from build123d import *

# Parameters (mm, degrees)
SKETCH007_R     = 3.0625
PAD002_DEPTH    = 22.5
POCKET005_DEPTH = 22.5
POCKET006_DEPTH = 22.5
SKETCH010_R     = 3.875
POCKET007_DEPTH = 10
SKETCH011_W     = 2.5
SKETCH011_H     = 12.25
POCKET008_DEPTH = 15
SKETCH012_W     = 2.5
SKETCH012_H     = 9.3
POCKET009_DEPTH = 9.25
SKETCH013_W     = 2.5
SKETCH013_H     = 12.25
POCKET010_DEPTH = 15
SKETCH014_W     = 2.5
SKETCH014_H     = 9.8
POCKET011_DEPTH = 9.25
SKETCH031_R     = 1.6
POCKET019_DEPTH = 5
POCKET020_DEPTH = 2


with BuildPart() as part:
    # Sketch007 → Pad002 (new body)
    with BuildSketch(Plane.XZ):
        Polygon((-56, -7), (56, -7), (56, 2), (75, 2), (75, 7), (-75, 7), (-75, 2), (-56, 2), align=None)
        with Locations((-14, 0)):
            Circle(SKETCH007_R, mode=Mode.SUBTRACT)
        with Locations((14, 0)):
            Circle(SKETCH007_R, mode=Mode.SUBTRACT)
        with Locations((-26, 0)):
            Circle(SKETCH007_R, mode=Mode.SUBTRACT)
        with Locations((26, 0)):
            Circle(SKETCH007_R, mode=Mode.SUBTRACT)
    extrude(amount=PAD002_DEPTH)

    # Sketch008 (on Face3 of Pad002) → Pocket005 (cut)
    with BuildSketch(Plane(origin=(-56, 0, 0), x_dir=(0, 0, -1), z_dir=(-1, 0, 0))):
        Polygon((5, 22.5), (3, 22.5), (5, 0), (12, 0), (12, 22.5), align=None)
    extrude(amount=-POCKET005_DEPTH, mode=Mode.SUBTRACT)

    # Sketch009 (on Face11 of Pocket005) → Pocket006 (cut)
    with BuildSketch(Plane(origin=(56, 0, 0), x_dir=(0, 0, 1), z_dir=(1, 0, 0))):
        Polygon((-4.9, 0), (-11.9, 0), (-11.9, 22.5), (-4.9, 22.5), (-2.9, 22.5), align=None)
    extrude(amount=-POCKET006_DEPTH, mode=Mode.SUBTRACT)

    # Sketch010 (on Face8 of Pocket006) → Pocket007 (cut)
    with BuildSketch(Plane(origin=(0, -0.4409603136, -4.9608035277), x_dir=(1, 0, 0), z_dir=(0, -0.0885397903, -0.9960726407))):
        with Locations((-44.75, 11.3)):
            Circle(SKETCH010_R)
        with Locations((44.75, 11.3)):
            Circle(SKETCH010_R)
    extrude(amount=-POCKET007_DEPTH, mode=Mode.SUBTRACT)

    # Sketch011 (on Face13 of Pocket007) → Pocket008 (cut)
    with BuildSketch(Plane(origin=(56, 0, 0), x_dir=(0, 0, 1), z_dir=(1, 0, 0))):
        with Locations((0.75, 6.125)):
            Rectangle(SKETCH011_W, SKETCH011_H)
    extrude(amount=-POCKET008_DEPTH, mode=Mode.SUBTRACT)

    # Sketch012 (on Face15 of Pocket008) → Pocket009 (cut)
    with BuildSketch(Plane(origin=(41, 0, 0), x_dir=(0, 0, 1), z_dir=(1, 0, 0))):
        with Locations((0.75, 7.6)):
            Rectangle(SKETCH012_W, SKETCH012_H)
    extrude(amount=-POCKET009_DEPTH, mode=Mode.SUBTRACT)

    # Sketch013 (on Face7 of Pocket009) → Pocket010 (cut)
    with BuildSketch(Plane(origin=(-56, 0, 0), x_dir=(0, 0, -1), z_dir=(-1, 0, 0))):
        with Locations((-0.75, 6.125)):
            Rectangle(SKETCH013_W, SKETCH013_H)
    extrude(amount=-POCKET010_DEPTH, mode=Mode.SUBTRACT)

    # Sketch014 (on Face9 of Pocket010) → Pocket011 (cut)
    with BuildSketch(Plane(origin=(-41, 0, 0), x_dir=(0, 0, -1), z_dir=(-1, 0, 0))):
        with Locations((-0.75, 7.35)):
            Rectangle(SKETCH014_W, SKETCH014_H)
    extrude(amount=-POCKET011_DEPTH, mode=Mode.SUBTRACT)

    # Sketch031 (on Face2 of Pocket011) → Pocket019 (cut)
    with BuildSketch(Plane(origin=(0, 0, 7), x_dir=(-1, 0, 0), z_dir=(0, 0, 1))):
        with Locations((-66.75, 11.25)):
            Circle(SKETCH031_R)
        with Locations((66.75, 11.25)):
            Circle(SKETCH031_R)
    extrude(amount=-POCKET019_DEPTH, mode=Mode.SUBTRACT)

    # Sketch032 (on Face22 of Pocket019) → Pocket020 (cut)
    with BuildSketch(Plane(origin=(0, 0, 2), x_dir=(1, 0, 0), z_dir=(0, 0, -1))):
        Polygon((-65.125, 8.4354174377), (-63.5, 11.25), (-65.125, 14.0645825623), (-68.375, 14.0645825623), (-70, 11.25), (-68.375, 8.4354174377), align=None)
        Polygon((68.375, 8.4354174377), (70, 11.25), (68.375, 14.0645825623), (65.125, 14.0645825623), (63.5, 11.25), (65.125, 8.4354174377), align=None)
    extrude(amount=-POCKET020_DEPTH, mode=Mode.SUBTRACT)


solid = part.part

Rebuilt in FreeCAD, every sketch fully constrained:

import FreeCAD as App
import Part
import Sketcher
from FreeCAD import Vector
Q = App.Units.Quantity


def add_polygon(sketch, points):
    """Adds a closed chain of lines whose ends are joined by coincident constraints."""
    first, n = sketch.GeometryCount, len(points)
    for a, b in zip(points, points[1:] + points[:1]):
        sketch.addGeometry(Part.LineSegment(App.Vector(*a, 0), App.Vector(*b, 0)), False)
    for i in range(n):
        sketch.addConstraint(Sketcher.Constraint("Coincident", first + i, 2, first + (i + 1) % n, 1))

doc = App.newDocument("Part")
params = doc.addObject("Spreadsheet::Sheet", "Params")
for row, (alias, value) in enumerate([
    ("sketch1_width", "112 mm"),
    ("sketch1_width2", "19 mm"),
    ("sketch1_height", "9 mm"),
    ("sketch1_height2", "5 mm"),
    ("pad1_length", "22.5 mm"),
    ("sketch2_height", "7 mm"),
    ("sketch2_height2", "9 mm"),
    ("sketch2_width", "22.5 mm"),
    ("pocket1_length", "22.5 mm"),
    ("sketch3_height", "7 mm"),
    ("sketch3_height2", "9 mm"),
    ("sketch3_width", "22.5 mm"),
    ("pocket2_length", "22.5 mm"),
    ("sketch4_diameter", "7.75 mm"),
    ("pocket3_length", "10 mm"),
    ("sketch5_height", "2.5 mm"),
    ("sketch5_width", "12.25 mm"),
    ("pocket4_length", "15 mm"),
    ("sketch6_width", "9.3 mm"),
    ("sketch6_height", "2.5 mm"),
    ("pocket5_length", "9.25 mm"),
    ("sketch7_height", "2.5 mm"),
    ("sketch7_width", "12.25 mm"),
    ("pocket6_length", "15 mm"),
    ("sketch8_width", "9.8 mm"),
    ("sketch8_height", "2.5 mm"),
    ("pocket7_length", "9.25 mm"),
    ("sketch9_diameter", "3.2 mm"),
    ("pocket8_length", "5 mm"),
    ("sketch10_width", "3.25 mm"),
    ("pocket9_length", "2 mm"),
], start=1):
    params.set(f"A{row}", alias)
    params.set(f"B{row}", "=" + value)
    params.setAlias(f"B{row}", alias)

body = doc.addObject("PartDesign::Body", "Body")

sketch1 = doc.addObject("Sketcher::SketchObject", "Sketch")
body.addObject(sketch1)
sketch1.AttachmentSupport = (doc.XZ_Plane, [""])
sketch1.MapMode = "FlatFace"
add_polygon(sketch1, [(-56, -7), (56, -7), (56, 2), (75, 2), (75, 7), (-75, 7), (-75, 2), (-56, 2)])
sketch1.addGeometry(Part.Circle(Vector(-26, 0, 0), Vector(0, 0, 1), 3.1), False)
sketch1.addGeometry(Part.Circle(Vector(-14, 0, 0), Vector(0, 0, 1), 3.1), False)
sketch1.addGeometry(Part.Circle(Vector(14, 0, 0), Vector(0, 0, 1), 3.1), False)
sketch1.addGeometry(Part.Circle(Vector(26, 0, 0), Vector(0, 0, 1), 3.1), False)
sketch1.addConstraint([
    Sketcher.Constraint("Horizontal", 0),
    Sketcher.Constraint("Vertical", 1),
    Sketcher.Constraint("Horizontal", 2),
    Sketcher.Constraint("Vertical", 3),
    Sketcher.Constraint("Horizontal", 4),
    Sketcher.Constraint("Vertical", 5),
    Sketcher.Constraint("Horizontal", 6),
    Sketcher.Constraint("Vertical", 7),
    Sketcher.Constraint("Equal", 8, 9),
    Sketcher.Constraint("Equal", 9, 10),
    Sketcher.Constraint("Equal", 10, 11),
    Sketcher.Constraint("Symmetric", 9, 3, 10, 3, -1, 1),
    Sketcher.Constraint("Symmetric", 8, 3, 11, 3, -1, 1),
    Sketcher.Constraint("Symmetric", 2, 2, 5, 2, -2),
    Sketcher.Constraint("PointOnObject", 8, 3, -1),
    Sketcher.Constraint("PointOnObject", 9, 3, -1),
    Sketcher.Constraint("Equal", 2, 6),
    Sketcher.Constraint("DistanceX", 0, 1, 0, 2, Q("112 mm")),
    Sketcher.Constraint("DistanceX", 2, 1, 2, 2, Q("19 mm")),
    Sketcher.Constraint("DistanceY", 1, 1, 1, 2, Q("9 mm")),
    Sketcher.Constraint("DistanceY", 3, 1, 3, 2, Q("5 mm")),
    Sketcher.Constraint("Diameter", 8, Q("6.125 mm")),
    Sketcher.Constraint("DistanceX", 8, 3, -1, 1, Q("26 mm")),
    Sketcher.Constraint("DistanceX", 9, 3, -1, 1, Q("14 mm")),
    Sketcher.Constraint("DistanceY", 0, 2, -1, 1, Q("7 mm")),
])
sketch1.setExpression("Constraints[25]", "Params.sketch1_width")
sketch1.setExpression("Constraints[26]", "Params.sketch1_width2")
sketch1.setExpression("Constraints[27]", "Params.sketch1_height")
sketch1.setExpression("Constraints[28]", "Params.sketch1_height2")
pad1 = doc.addObject("PartDesign::Pad", "Pad")
body.addObject(pad1)
pad1.Profile = sketch1
pad1.setExpression("Length", "Params.pad1_length")

sketch2 = doc.addObject("Sketcher::SketchObject", "Sketch001")
body.addObject(sketch2)
sketch2.AttachmentSupport = (doc.YZ_Plane, [""])
sketch2.MapMode = "FlatFace"
sketch2.AttachmentOffset = App.Placement(Vector(0, 0, -56), App.Rotation())
add_polygon(sketch2, [(-22, -3), (0, -5), (0, -12), (-22, -12)])
sketch2.addConstraint([
    Sketcher.Constraint("Vertical", 1),
    Sketcher.Constraint("Horizontal", 2),
    Sketcher.Constraint("Vertical", 3),
    Sketcher.Constraint("PointOnObject", 0, 2, -2),
    Sketcher.Constraint("DistanceY", 1, 2, 1, 1, Q("7 mm")),
    Sketcher.Constraint("DistanceY", 3, 1, 3, 2, Q("9 mm")),
    Sketcher.Constraint("DistanceX", 2, 2, 2, 1, Q("22.5 mm")),
    Sketcher.Constraint("DistanceY", 0, 2, -1, 1, Q("5 mm")),
])
sketch2.setExpression("Constraints[8]", "Params.sketch2_height")
sketch2.setExpression("Constraints[9]", "Params.sketch2_height2")
sketch2.setExpression("Constraints[10]", "Params.sketch2_width")
pocket1 = doc.addObject("PartDesign::Pocket", "Pocket")
body.addObject(pocket1)
pocket1.Profile = sketch2
pocket1.setExpression("Length", "Params.pocket1_length")
pocket1.Reversed = True

sketch3 = doc.addObject("Sketcher::SketchObject", "Sketch002")
body.addObject(sketch3)
sketch3.AttachmentSupport = (doc.YZ_Plane, [""])
sketch3.MapMode = "FlatFace"
sketch3.AttachmentOffset = App.Placement(Vector(0, 0, 56), App.Rotation())
add_polygon(sketch3, [(0, -12), (0, -5), (-22, -3), (-22, -12)])
sketch3.addConstraint([
    Sketcher.Constraint("Vertical", 0),
    Sketcher.Constraint("Vertical", 2),
    Sketcher.Constraint("Horizontal", 3),
    Sketcher.Constraint("PointOnObject", 0, 2, -2),
    Sketcher.Constraint("DistanceY", 0, 1, 0, 2, Q("7 mm")),
    Sketcher.Constraint("DistanceY", 2, 2, 2, 1, Q("9 mm")),
    Sketcher.Constraint("DistanceX", 3, 1, 3, 2, Q("22.5 mm")),
    Sketcher.Constraint("DistanceY", 0, 2, -1, 1, Q("4.9 mm")),
])
sketch3.setExpression("Constraints[8]", "Params.sketch3_height")
sketch3.setExpression("Constraints[9]", "Params.sketch3_height2")
sketch3.setExpression("Constraints[10]", "Params.sketch3_width")
pocket2 = doc.addObject("PartDesign::Pocket", "Pocket001")
body.addObject(pocket2)
pocket2.Profile = sketch3
pocket2.setExpression("Length", "Params.pocket2_length")

sketch4 = doc.addObject("Sketcher::SketchObject", "Sketch003")
body.addObject(sketch4)
sketch4.Placement = App.Placement(Vector(0, -0.44096, -4.960804), App.Rotation(Vector(1, 0, 0), Vector(0, -0.996072641, 0.08853979), Vector(0, -0.08853979, -0.996072641), "ZXY"))
sketch4.addGeometry([
    Part.Circle(Vector(-44.8, 11.3, 0), Vector(0, 0, 1), 3.9),
    Part.Circle(Vector(44.8, 11.3, 0), Vector(0, 0, 1), 3.9),
], False)
sketch4.addConstraint([
    Sketcher.Constraint("Equal", 0, 1),
    Sketcher.Constraint("Symmetric", 0, 3, 1, 3, -2),
    Sketcher.Constraint("Diameter", 0, Q("7.75 mm")),
    Sketcher.Constraint("DistanceY", -1, 1, 0, 3, Q("11.3 mm")),
    Sketcher.Constraint("DistanceX", 0, 3, 1, 3, Q("89.5 mm")),
])
sketch4.setExpression("Constraints[2]", "Params.sketch4_diameter")
pocket3 = doc.addObject("PartDesign::Pocket", "Pocket002")
body.addObject(pocket3)
pocket3.Profile = sketch4
pocket3.setExpression("Length", "Params.pocket3_length")

sketch5 = doc.addObject("Sketcher::SketchObject", "Sketch004")
body.addObject(sketch5)
sketch5.AttachmentSupport = (doc.YZ_Plane, [""])
sketch5.MapMode = "FlatFace"
sketch5.AttachmentOffset = App.Placement(Vector(0, 0, 56), App.Rotation())
add_polygon(sketch5, [(-12.2, -0.5), (0, -0.5), (0, 2), (-12.2, 2)])
sketch5.addConstraint([
    Sketcher.Constraint("Horizontal", 0),
    Sketcher.Constraint("Vertical", 1),
    Sketcher.Constraint("Horizontal", 2),
    Sketcher.Constraint("Vertical", 3),
    Sketcher.Constraint("PointOnObject", 0, 2, -2),
    Sketcher.Constraint("DistanceY", 1, 1, 1, 2, Q("2.5 mm")),
    Sketcher.Constraint("DistanceY", -1, 1, 1, 2, Q("2 mm")),
    Sketcher.Constraint("DistanceX", 0, 1, 0, 2, Q("12.25 mm")),
])
sketch5.setExpression("Constraints[9]", "Params.sketch5_height")
sketch5.setExpression("Constraints[11]", "Params.sketch5_width")
pocket4 = doc.addObject("PartDesign::Pocket", "Pocket003")
body.addObject(pocket4)
pocket4.Profile = sketch5
pocket4.setExpression("Length", "Params.pocket4_length")

sketch6 = doc.addObject("Sketcher::SketchObject", "Sketch005")
body.addObject(sketch6)
sketch6.AttachmentSupport = (doc.YZ_Plane, [""])
sketch6.MapMode = "FlatFace"
sketch6.AttachmentOffset = App.Placement(Vector(0, 0, 41), App.Rotation())
add_polygon(sketch6, [(-12.2, -0.5), (-3, -0.5), (-3, 2), (-12.2, 2)])
sketch6.addConstraint([
    Sketcher.Constraint("Horizontal", 0),
    Sketcher.Constraint("Vertical", 1),
    Sketcher.Constraint("Horizontal", 2),
    Sketcher.Constraint("Vertical", 3),
    Sketcher.Constraint("DistanceX", 0, 1, 0, 2, Q("9.3 mm")),
    Sketcher.Constraint("DistanceY", 1, 1, 1, 2, Q("2.5 mm")),
    Sketcher.Constraint("DistanceY", -1, 1, 1, 2, Q("2 mm")),
    Sketcher.Constraint("DistanceX", 0, 2, -1, 1, Q("2.95 mm")),
])
sketch6.setExpression("Constraints[8]", "Params.sketch6_width")
sketch6.setExpression("Constraints[9]", "Params.sketch6_height")
pocket5 = doc.addObject("PartDesign::Pocket", "Pocket004")
body.addObject(pocket5)
pocket5.Profile = sketch6
pocket5.setExpression("Length", "Params.pocket5_length")

sketch7 = doc.addObject("Sketcher::SketchObject", "Sketch006")
body.addObject(sketch7)
sketch7.AttachmentSupport = (doc.YZ_Plane, [""])
sketch7.MapMode = "FlatFace"
sketch7.AttachmentOffset = App.Placement(Vector(0, 0, -56), App.Rotation())
add_polygon(sketch7, [(-12.2, 2), (0, 2), (0, -0.5), (-12.2, -0.5)])
sketch7.addConstraint([
    Sketcher.Constraint("Horizontal", 0),
    Sketcher.Constraint("Vertical", 1),
    Sketcher.Constraint("Horizontal", 2),
    Sketcher.Constraint("Vertical", 3),
    Sketcher.Constraint("PointOnObject", 0, 2, -2),
    Sketcher.Constraint("DistanceY", 1, 2, 1, 1, Q("2.5 mm")),
    Sketcher.Constraint("DistanceY", -1, 1, 0, 2, Q("2 mm")),
    Sketcher.Constraint("DistanceX", 0, 1, 0, 2, Q("12.25 mm")),
])
sketch7.setExpression("Constraints[9]", "Params.sketch7_height")
sketch7.setExpression("Constraints[11]", "Params.sketch7_width")
pocket6 = doc.addObject("PartDesign::Pocket", "Pocket005")
body.addObject(pocket6)
pocket6.Profile = sketch7
pocket6.setExpression("Length", "Params.pocket6_length")
pocket6.Reversed = True

sketch8 = doc.addObject("Sketcher::SketchObject", "Sketch007")
body.addObject(sketch8)
sketch8.AttachmentSupport = (doc.YZ_Plane, [""])
sketch8.MapMode = "FlatFace"
sketch8.AttachmentOffset = App.Placement(Vector(0, 0, -41), App.Rotation())
add_polygon(sketch8, [(-12.2, 2), (-2.5, 2), (-2.5, -0.5), (-12.2, -0.5)])
sketch8.addConstraint([
    Sketcher.Constraint("Horizontal", 0),
    Sketcher.Constraint("Vertical", 1),
    Sketcher.Constraint("Horizontal", 2),
    Sketcher.Constraint("Vertical", 3),
    Sketcher.Constraint("DistanceX", 0, 1, 0, 2, Q("9.8 mm")),
    Sketcher.Constraint("DistanceY", 1, 2, 1, 1, Q("2.5 mm")),
    Sketcher.Constraint("DistanceY", -1, 1, 0, 2, Q("2 mm")),
    Sketcher.Constraint("DistanceX", 0, 2, -1, 1, Q("2.45 mm")),
])
sketch8.setExpression("Constraints[8]", "Params.sketch8_width")
sketch8.setExpression("Constraints[9]", "Params.sketch8_height")
pocket7 = doc.addObject("PartDesign::Pocket", "Pocket006")
body.addObject(pocket7)
pocket7.Profile = sketch8
pocket7.setExpression("Length", "Params.pocket7_length")
pocket7.Reversed = True

sketch9 = doc.addObject("Sketcher::SketchObject", "Sketch008")
body.addObject(sketch9)
sketch9.AttachmentSupport = (doc.XY_Plane, [""])
sketch9.MapMode = "FlatFace"
sketch9.AttachmentOffset = App.Placement(Vector(0, 0, 7), App.Rotation())
sketch9.addGeometry([
    Part.Circle(Vector(66.8, -11.2, 0), Vector(0, 0, 1), 1.6),
    Part.Circle(Vector(-66.8, -11.2, 0), Vector(0, 0, 1), 1.6),
], False)
sketch9.addConstraint([
    Sketcher.Constraint("Equal", 0, 1),
    Sketcher.Constraint("Symmetric", 0, 3, 1, 3, -2),
    Sketcher.Constraint("Diameter", 0, Q("3.2 mm")),
    Sketcher.Constraint("DistanceX", 1, 3, 0, 3, Q("133.5 mm")),
    Sketcher.Constraint("DistanceY", 0, 3, -1, 1, Q("11.25 mm")),
])
sketch9.setExpression("Constraints[2]", "Params.sketch9_diameter")
pocket8 = doc.addObject("PartDesign::Pocket", "Pocket007")
body.addObject(pocket8)
pocket8.Profile = sketch9
pocket8.setExpression("Length", "Params.pocket8_length")

sketch10 = doc.addObject("Sketcher::SketchObject", "Sketch009")
body.addObject(sketch10)
sketch10.AttachmentSupport = (doc.XY_Plane, [""])
sketch10.MapMode = "FlatFace"
sketch10.AttachmentOffset = App.Placement(Vector(0, 0, 2), App.Rotation())
add_polygon(sketch10, [(-65.1, -8.4), (-63.5, -11.2), (-65.1, -14.1), (-68.4, -14.1), (-70, -11.2), (-68.4, -8.4)])
add_polygon(sketch10, [(68.4, -8.4), (70, -11.2), (68.4, -14.1), (65.1, -14.1), (63.5, -11.2), (65.1, -8.4)])
sketch10.addConstraint([
    Sketcher.Constraint("Horizontal", 2),
    Sketcher.Constraint("Horizontal", 5),
    Sketcher.Constraint("Horizontal", 8),
    Sketcher.Constraint("Horizontal", 11),
    Sketcher.Constraint("Symmetric", 3, 2, 6, 2, -2),
    Sketcher.Constraint("Symmetric", 2, 2, 7, 2, -2),
    Sketcher.Constraint("Symmetric", 0, 2, 9, 2, -2),
    Sketcher.Constraint("Symmetric", 5, 2, 10, 2, -2),
    Sketcher.Constraint("Parallel", 0, 3),
    Sketcher.Constraint("Parallel", 1, 4),
    Sketcher.Constraint("Parallel", 3, 6),
    Sketcher.Constraint("Parallel", 4, 7),
    Sketcher.Constraint("Parallel", 6, 9),
    Sketcher.Constraint("Horizontal", 0, 2, 3, 2),
    Sketcher.Constraint("Vertical", 2, 2, 4, 2),
    Sketcher.Constraint("Angle", 0, Q("-60 deg")),
    Sketcher.Constraint("DistanceX", 3, 2, -1, 1, Q("70 mm")),
    Sketcher.Constraint("DistanceX", 0, 2, 9, 2, Q("127 mm")),
    Sketcher.Constraint("DistanceX", 2, 2, 2, 1, Q("3.25 mm")),
    Sketcher.Constraint("DistanceY", 0, 2, -1, 1, Q("11.25 mm")),
])
sketch10.setExpression("Constraints[30]", "Params.sketch10_width")
pocket9 = doc.addObject("PartDesign::Pocket", "Pocket008")
body.addObject(pocket9)
pocket9.Profile = sketch10
pocket9.setExpression("Length", "Params.pocket9_length")
pocket9.Reversed = True

doc.recompute()
